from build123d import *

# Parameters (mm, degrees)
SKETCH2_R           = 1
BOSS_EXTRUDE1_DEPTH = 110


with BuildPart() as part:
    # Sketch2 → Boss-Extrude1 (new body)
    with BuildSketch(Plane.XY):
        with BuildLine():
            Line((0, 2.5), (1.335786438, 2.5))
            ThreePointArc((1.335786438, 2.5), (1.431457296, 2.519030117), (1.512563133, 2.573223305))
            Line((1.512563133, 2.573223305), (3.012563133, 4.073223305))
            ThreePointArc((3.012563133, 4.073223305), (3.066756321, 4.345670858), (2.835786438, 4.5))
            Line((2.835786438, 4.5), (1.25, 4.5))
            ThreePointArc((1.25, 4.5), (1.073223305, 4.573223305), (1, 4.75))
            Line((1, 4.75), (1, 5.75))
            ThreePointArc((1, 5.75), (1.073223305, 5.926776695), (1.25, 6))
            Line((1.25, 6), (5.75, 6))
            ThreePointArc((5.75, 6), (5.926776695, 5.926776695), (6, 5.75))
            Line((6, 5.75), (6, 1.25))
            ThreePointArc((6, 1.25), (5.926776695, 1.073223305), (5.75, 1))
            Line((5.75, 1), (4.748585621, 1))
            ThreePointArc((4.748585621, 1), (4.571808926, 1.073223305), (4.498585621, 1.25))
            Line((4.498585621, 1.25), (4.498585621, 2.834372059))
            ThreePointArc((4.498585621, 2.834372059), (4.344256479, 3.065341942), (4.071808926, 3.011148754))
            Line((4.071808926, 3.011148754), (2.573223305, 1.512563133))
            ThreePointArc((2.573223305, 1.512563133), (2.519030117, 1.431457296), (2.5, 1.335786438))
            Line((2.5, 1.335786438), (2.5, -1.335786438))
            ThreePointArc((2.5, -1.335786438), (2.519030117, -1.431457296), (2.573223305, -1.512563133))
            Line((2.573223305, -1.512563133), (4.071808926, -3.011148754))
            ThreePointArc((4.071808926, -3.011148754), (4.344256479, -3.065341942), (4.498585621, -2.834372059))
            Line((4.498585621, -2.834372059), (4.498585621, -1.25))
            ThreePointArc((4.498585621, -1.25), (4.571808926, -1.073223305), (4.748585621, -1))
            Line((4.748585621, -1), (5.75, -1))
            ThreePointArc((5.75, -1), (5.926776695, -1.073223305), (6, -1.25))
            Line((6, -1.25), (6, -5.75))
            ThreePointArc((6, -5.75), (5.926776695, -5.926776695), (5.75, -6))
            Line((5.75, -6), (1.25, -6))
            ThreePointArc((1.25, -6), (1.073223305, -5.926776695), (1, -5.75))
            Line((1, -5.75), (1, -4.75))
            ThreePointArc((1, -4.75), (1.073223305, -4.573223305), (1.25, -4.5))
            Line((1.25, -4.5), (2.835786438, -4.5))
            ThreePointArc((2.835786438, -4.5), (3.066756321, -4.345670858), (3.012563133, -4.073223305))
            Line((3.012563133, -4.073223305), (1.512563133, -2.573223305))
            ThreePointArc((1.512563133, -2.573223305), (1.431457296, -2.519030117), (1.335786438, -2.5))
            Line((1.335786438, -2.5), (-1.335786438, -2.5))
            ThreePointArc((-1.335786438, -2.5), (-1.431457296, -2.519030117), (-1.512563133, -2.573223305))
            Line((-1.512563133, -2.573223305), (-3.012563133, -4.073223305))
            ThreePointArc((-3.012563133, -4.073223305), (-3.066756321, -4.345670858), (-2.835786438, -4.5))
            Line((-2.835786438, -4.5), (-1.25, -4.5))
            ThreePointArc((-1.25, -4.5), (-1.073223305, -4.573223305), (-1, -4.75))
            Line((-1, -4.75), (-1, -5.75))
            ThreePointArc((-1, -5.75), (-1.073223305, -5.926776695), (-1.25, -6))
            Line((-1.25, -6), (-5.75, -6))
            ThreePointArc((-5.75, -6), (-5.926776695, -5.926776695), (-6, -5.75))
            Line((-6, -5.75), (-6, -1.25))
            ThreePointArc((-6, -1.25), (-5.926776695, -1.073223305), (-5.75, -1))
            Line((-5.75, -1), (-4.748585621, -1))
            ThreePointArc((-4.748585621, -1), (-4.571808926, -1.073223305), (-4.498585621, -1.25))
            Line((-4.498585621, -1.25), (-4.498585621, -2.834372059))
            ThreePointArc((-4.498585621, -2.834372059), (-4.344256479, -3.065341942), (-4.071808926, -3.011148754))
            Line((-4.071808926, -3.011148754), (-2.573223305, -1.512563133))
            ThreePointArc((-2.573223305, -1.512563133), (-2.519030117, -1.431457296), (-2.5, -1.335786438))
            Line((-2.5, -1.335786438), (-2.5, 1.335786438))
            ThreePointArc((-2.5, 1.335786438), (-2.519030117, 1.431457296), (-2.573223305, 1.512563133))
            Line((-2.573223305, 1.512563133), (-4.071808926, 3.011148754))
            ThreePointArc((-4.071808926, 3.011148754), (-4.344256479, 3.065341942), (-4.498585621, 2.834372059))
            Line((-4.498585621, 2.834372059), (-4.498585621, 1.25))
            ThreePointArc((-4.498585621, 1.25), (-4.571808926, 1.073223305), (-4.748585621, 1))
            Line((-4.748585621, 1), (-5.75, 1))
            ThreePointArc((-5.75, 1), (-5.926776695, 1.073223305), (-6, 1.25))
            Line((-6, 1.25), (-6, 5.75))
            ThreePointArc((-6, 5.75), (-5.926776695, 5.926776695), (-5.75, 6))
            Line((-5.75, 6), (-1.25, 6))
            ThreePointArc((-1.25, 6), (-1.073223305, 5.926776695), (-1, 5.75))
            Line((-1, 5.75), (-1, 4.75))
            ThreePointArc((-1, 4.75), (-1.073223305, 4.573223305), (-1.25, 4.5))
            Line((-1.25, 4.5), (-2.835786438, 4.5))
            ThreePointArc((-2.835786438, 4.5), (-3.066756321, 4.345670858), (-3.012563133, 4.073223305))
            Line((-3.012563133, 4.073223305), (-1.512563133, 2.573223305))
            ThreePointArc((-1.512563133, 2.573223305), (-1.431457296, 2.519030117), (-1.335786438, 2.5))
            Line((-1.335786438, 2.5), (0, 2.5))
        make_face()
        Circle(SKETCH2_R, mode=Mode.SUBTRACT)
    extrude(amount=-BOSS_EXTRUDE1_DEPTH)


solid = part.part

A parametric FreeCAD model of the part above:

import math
import FreeCAD as App
import Part
import Sketcher

V = App.Vector

doc = App.newDocument("Part")
params = doc.addObject("Spreadsheet::Sheet", "Params")
for row, (alias, value) in enumerate([
    ("sketch1_diameter", "2 mm"),
    ("sketch1_height", "1 mm"),
    ("sketch1_radius", "0.25 mm"),
    ("sketch1_width", "4.5 mm"),
    ("pad1_length", "110 mm"),
], start=1):
    params.set(f"A{row}", alias)
    params.set(f"B{row}", "=" + value)
    params.setAlias(f"B{row}", alias)

body = doc.addObject("PartDesign::Body", "Body")

# Sketch on XY plane
sketch1 = body.newObject("Sketcher::SketchObject", "Sketch")
sketch1.AttachmentSupport = (doc.getObject("XY_Plane"), [""])
sketch1.MapMode = "FlatFace"
sketch1.addGeometry([
    Part.ArcOfCircle(Part.Circle(V(1.335786, 2.75, 0), V(0, 0, 1), 0.25), math.radians(-90), math.radians(-45)),  # 0
    Part.LineSegment(V(1.335786, 2.5, 0), V(-1.335786, 2.5, 0)),  # 1
    Part.ArcOfCircle(Part.Circle(V(-1.335786, 2.75, 0), V(0, 0, 1), 0.25), math.radians(-135), math.radians(-90)),  # 2
    Part.LineSegment(V(-1.512563, 2.573223, 0), V(-3.012563, 4.073223, 0)),  # 3
    Part.ArcOfCircle(Part.Circle(V(-2.835786, 4.25, 0), V(0, 0, 1), 0.25), math.radians(90), math.radians(225)),  # 4
    Part.LineSegment(V(-2.835786, 4.5, 0), V(-1.25, 4.5, 0)),  # 5
    Part.ArcOfCircle(Part.Circle(V(-1.25, 4.75, 0), V(0, 0, 1), 0.25), math.radians(-90), math.radians(0)),  # 6
    Part.LineSegment(V(-1, 4.75, 0), V(-1, 5.75, 0)),  # 7
    Part.ArcOfCircle(Part.Circle(V(-1.25, 5.75, 0), V(0, 0, 1), 0.25), math.radians(0), math.radians(90)),  # 8
    Part.LineSegment(V(-1.25, 6, 0), V(-5.75, 6, 0)),  # 9
    Part.ArcOfCircle(Part.Circle(V(-5.75, 5.75, 0), V(0, 0, 1), 0.25), math.radians(90), math.radians(180)),  # 10
    Part.LineSegment(V(-6, 5.75, 0), V(-6, 1.25, 0)),  # 11
    Part.ArcOfCircle(Part.Circle(V(-5.75, 1.25, 0), V(0, 0, 1), 0.25), math.radians(-180), math.radians(-90)),  # 12
    Part.LineSegment(V(-5.75, 1, 0), V(-4.748586, 1, 0)),  # 13
    Part.ArcOfCircle(Part.Circle(V(-4.748586, 1.25, 0), V(0, 0, 1), 0.25), math.radians(-90), math.radians(0)),  # 14
    Part.LineSegment(V(-4.498586, 1.25, 0), V(-4.498586, 2.834372, 0)),  # 15
    Part.ArcOfCircle(Part.Circle(V(-4.248586, 2.834372, 0), V(0, 0, 1), 0.25), math.radians(45), math.radians(180)),  # 16
    Part.LineSegment(V(-4.071809, 3.011149, 0), V(-2.573223, 1.512563, 0)),  # 17
    Part.ArcOfCircle(Part.Circle(V(-2.75, 1.335786, 0), V(0, 0, 1), 0.25), math.radians(0), math.radians(45)),  # 18
    Part.LineSegment(V(-2.5, 1.335786, 0), V(-2.5, -1.335786, 0)),  # 19
    Part.ArcOfCircle(Part.Circle(V(-2.75, -1.335786, 0), V(0, 0, 1), 0.25), math.radians(-45), math.radians(0)),  # 20
    Part.LineSegment(V(-2.573223, -1.512563, 0), V(-4.071809, -3.011149, 0)),  # 21
    Part.ArcOfCircle(Part.Circle(V(-4.248586, -2.834372, 0), V(0, 0, 1), 0.25), math.radians(180), math.radians(315)),  # 22
    Part.LineSegment(V(-4.498586, -2.834372, 0), V(-4.498586, -1.25, 0)),  # 23
    Part.ArcOfCircle(Part.Circle(V(-4.748586, -1.25, 0), V(0, 0, 1), 0.25), math.radians(0), math.radians(90)),  # 24
    Part.LineSegment(V(-4.748586, -1, 0), V(-5.75, -1, 0)),  # 25
    Part.ArcOfCircle(Part.Circle(V(-5.75, -1.25, 0), V(0, 0, 1), 0.25), math.radians(90), math.radians(180)),  # 26
    Part.LineSegment(V(-6, -1.25, 0), V(-6, -5.75, 0)),  # 27
    Part.ArcOfCircle(Part.Circle(V(-5.75, -5.75, 0), V(0, 0, 1), 0.25), math.radians(-180), math.radians(-90)),  # 28
    Part.LineSegment(V(-5.75, -6, 0), V(-1.25, -6, 0)),  # 29
    Part.ArcOfCircle(Part.Circle(V(-1.25, -5.75, 0), V(0, 0, 1), 0.25), math.radians(-90), math.radians(0)),  # 30
    Part.LineSegment(V(-1, -5.75, 0), V(-1, -4.75, 0)),  # 31
    Part.ArcOfCircle(Part.Circle(V(-1.25, -4.75, 0), V(0, 0, 1), 0.25), math.radians(0), math.radians(90)),  # 32
    Part.LineSegment(V(-1.25, -4.5, 0), V(-2.835786, -4.5, 0)),  # 33
    Part.ArcOfCircle(Part.Circle(V(-2.835786, -4.25, 0), V(0, 0, 1), 0.25), math.radians(135), math.radians(270)),  # 34
    Part.LineSegment(V(-3.012563, -4.073223, 0), V(-1.512563, -2.573223, 0)),  # 35
    Part.ArcOfCircle(Part.Circle(V(-1.335786, -2.75, 0), V(0, 0, 1), 0.25), math.radians(90), math.radians(135)),  # 36
    Part.LineSegment(V(-1.335786, -2.5, 0), V(1.335786, -2.5, 0)),  # 37
    Part.ArcOfCircle(Part.Circle(V(1.335786, -2.75, 0), V(0, 0, 1), 0.25), math.radians(45), math.radians(90)),  # 38
    Part.LineSegment(V(1.512563, -2.573223, 0), V(3.012563, -4.073223, 0)),  # 39
    Part.ArcOfCircle(Part.Circle(V(2.835786, -4.25, 0), V(0, 0, 1), 0.25), math.radians(-90), math.radians(45)),  # 40
    Part.LineSegment(V(2.835786, -4.5, 0), V(1.25, -4.5, 0)),  # 41
    Part.ArcOfCircle(Part.Circle(V(1.25, -4.75, 0), V(0, 0, 1), 0.25), math.radians(90), math.radians(180)),  # 42
    Part.LineSegment(V(1, -4.75, 0), V(1, -5.75, 0)),  # 43
    Part.ArcOfCircle(Part.Circle(V(1.25, -5.75, 0), V(0, 0, 1), 0.25), math.radians(-180), math.radians(-90)),  # 44
    Part.LineSegment(V(1.25, -6, 0), V(5.75, -6, 0)),  # 45
    Part.ArcOfCircle(Part.Circle(V(5.75, -5.75, 0), V(0, 0, 1), 0.25), math.radians(-90), math.radians(0)),  # 46
    Part.LineSegment(V(6, -5.75, 0), V(6, -1.25, 0)),  # 47
    Part.ArcOfCircle(Part.Circle(V(5.75, -1.25, 0), V(0, 0, 1), 0.25), math.radians(0), math.radians(90)),  # 48
    Part.LineSegment(V(5.75, -1, 0), V(4.748586, -1, 0)),  # 49
    Part.ArcOfCircle(Part.Circle(V(4.748586, -1.25, 0), V(0, 0, 1), 0.25), math.radians(90), math.radians(180)),  # 50
    Part.LineSegment(V(4.498586, -1.25, 0), V(4.498586, -2.834372, 0)),  # 51
    Part.ArcOfCircle(Part.Circle(V(4.248586, -2.834372, 0), V(0, 0, 1), 0.25), math.radians(-135), math.radians(0)),  # 52
    Part.LineSegment(V(4.071809, -3.011149, 0), V(2.573223, -1.512563, 0)),  # 53
    Part.ArcOfCircle(Part.Circle(V(2.75, -1.335786, 0), V(0, 0, 1), 0.25), math.radians(180), math.radians(225)),  # 54
    Part.LineSegment(V(2.5, -1.335786, 0), V(2.5, 1.335786, 0)),  # 55
    Part.ArcOfCircle(Part.Circle(V(2.75, 1.335786, 0), V(0, 0, 1), 0.25), math.radians(135), math.radians(180)),  # 56
    Part.LineSegment(V(2.573223, 1.512563, 0), V(4.071809, 3.011149, 0)),  # 57
    Part.ArcOfCircle(Part.Circle(V(4.248586, 2.834372, 0), V(0, 0, 1), 0.25), math.radians(0), math.radians(135)),  # 58
    Part.LineSegment(V(4.498586, 2.834372, 0), V(4.498586, 1.25, 0)),  # 59
    Part.ArcOfCircle(Part.Circle(V(4.748586, 1.25, 0), V(0, 0, 1), 0.25), math.radians(-180), math.radians(-90)),  # 60
    Part.LineSegment(V(4.748586, 1, 0), V(5.75, 1, 0)),  # 61
    Part.ArcOfCircle(Part.Circle(V(5.75, 1.25, 0), V(0, 0, 1), 0.25), math.radians(-90), math.radians(0)),  # 62
    Part.LineSegment(V(6, 1.25, 0), V(6, 5.75, 0)),  # 63
    Part.ArcOfCircle(Part.Circle(V(5.75, 5.75, 0), V(0, 0, 1), 0.25), math.radians(0), math.radians(90)),  # 64
    Part.LineSegment(V(5.75, 6, 0), V(1.25, 6, 0)),  # 65
    Part.ArcOfCircle(Part.Circle(V(1.25, 5.75, 0), V(0, 0, 1), 0.25), math.radians(90), math.radians(180)),  # 66
    Part.LineSegment(V(1, 5.75, 0), V(1, 4.75, 0)),  # 67
    Part.ArcOfCircle(Part.Circle(V(1.25, 4.75, 0), V(0, 0, 1), 0.25), math.radians(-180), math.radians(-90)),  # 68
    Part.LineSegment(V(1.25, 4.5, 0), V(2.835786, 4.5, 0)),  # 69
    Part.ArcOfCircle(Part.Circle(V(2.835786, 4.25, 0), V(0, 0, 1), 0.25), math.radians(-45), math.radians(90)),  # 70
    Part.LineSegment(V(3.012563, 4.073223, 0), V(1.512563, 2.573223, 0)),  # 71
    Part.Circle(V(0, 0, 0), V(0, 0, 1), 1),  # 72
], False)
sketch1.addConstraint([
    Sketcher.Constraint("Tangent", 0, 1, 1, 1),
    Sketcher.Constraint("Tangent", 1, 2, 2, 2),
    Sketcher.Constraint("Tangent", 2, 1, 3, 1),
    Sketcher.Constraint("Tangent", 3, 2, 4, 2),
    Sketcher.Constraint("Tangent", 4, 1, 5, 1),
    Sketcher.Constraint("Tangent", 5, 2, 6, 1),
    Sketcher.Constraint("Tangent", 6, 2, 7, 1),
    Sketcher.Constraint("Tangent", 7, 2, 8, 1),
    Sketcher.Constraint("Tangent", 8, 2, 9, 1),
    Sketcher.Constraint("Tangent", 9, 2, 10, 1),
    Sketcher.Constraint("Tangent", 10, 2, 11, 1),
    Sketcher.Constraint("Tangent", 11, 2, 12, 1),
    Sketcher.Constraint("Tangent", 12, 2, 13, 1),
    Sketcher.Constraint("Tangent", 13, 2, 14, 1),
    Sketcher.Constraint("Tangent", 14, 2, 15, 1),
    Sketcher.Constraint("Tangent", 15, 2, 16, 2),
    Sketcher.Constraint("Tangent", 16, 1, 17, 1),
    Sketcher.Constraint("Tangent", 17, 2, 18, 2),
    Sketcher.Constraint("Tangent", 18, 1, 19, 1),
    Sketcher.Constraint("Tangent", 19, 2, 20, 2),
    Sketcher.Constraint("Tangent", 20, 1, 21, 1),
    Sketcher.Constraint("Tangent", 21, 2, 22, 2),
    Sketcher.Constraint("Tangent", 22, 1, 23, 1),
    Sketcher.Constraint("Tangent", 23, 2, 24, 1),
    Sketcher.Constraint("Tangent", 24, 2, 25, 1),
    Sketcher.Constraint("Tangent", 25, 2, 26, 1),
    Sketcher.Constraint("Tangent", 26, 2, 27, 1),
    Sketcher.Constraint("Tangent", 27, 2, 28, 1),
    Sketcher.Constraint("Tangent", 28, 2, 29, 1),
    Sketcher.Constraint("Tangent", 29, 2, 30, 1),
    Sketcher.Constraint("Tangent", 30, 2, 31, 1),
    Sketcher.Constraint("Tangent", 31, 2, 32, 1),
    Sketcher.Constraint("Tangent", 32, 2, 33, 1),
    Sketcher.Constraint("Tangent", 33, 2, 34, 2),
    Sketcher.Constraint("Tangent", 34, 1, 35, 1),
    Sketcher.Constraint("Tangent", 35, 2, 36, 2),
    Sketcher.Constraint("Tangent", 36, 1, 37, 1),
    Sketcher.Constraint("Tangent", 37, 2, 38, 2),
    Sketcher.Constraint("Tangent", 38, 1, 39, 1),
    Sketcher.Constraint("Tangent", 39, 2, 40, 2),
    Sketcher.Constraint("Tangent", 40, 1, 41, 1),
    Sketcher.Constraint("Tangent", 41, 2, 42, 1),
    Sketcher.Constraint("Tangent", 42, 2, 43, 1),
    Sketcher.Constraint("Tangent", 43, 2, 44, 1),
    Sketcher.Constraint("Tangent", 44, 2, 45, 1),
    Sketcher.Constraint("Tangent", 45, 2, 46, 1),
    Sketcher.Constraint("Tangent", 46, 2, 47, 1),
    Sketcher.Constraint("Tangent", 47, 2, 48, 1),
    Sketcher.Constraint("Tangent", 48, 2, 49, 1),
    Sketcher.Constraint("Tangent", 49, 2, 50, 1),
    Sketcher.Constraint("Tangent", 50, 2, 51, 1),
    Sketcher.Constraint("Tangent", 51, 2, 52, 2),
    Sketcher.Constraint("Tangent", 52, 1, 53, 1),
    Sketcher.Constraint("Tangent", 53, 2, 54, 2),
    Sketcher.Constraint("Tangent", 54, 1, 55, 1),
    Sketcher.Constraint("Tangent", 55, 2, 56, 2),
    Sketcher.Constraint("Tangent", 56, 1, 57, 1),
    Sketcher.Constraint("Tangent", 57, 2, 58, 2),
    Sketcher.Constraint("Tangent", 58, 1, 59, 1),
    Sketcher.Constraint("Tangent", 59, 2, 60, 1),
    Sketcher.Constraint("Tangent", 60, 2, 61, 1),
    Sketcher.Constraint("Tangent", 61, 2, 62, 1),
    Sketcher.Constraint("Tangent", 62, 2, 63, 1),
    Sketcher.Constraint("Tangent", 63, 2, 64, 1),
    Sketcher.Constraint("Tangent", 64, 2, 65, 1),
    Sketcher.Constraint("Tangent", 65, 2, 66, 1),
    Sketcher.Constraint("Tangent", 66, 2, 67, 1),
    Sketcher.Constraint("Tangent", 67, 2, 68, 1),
    Sketcher.Constraint("Tangent", 68, 2, 69, 1),
    Sketcher.Constraint("Tangent", 69, 2, 70, 2),
    Sketcher.Constraint("Tangent", 70, 1, 71, 1),
    Sketcher.Constraint("Tangent", 71, 2, 0, 2),
    Sketcher.Constraint("Horizontal", 1),
    Sketcher.Constraint("Horizontal", 5),
    Sketcher.Constraint("Vertical", 7),
    Sketcher.Constraint("Horizontal", 9),
    Sketcher.Constraint("Vertical", 11),
    Sketcher.Constraint("Horizontal", 13),
    Sketcher.Constraint("Vertical", 15),
    Sketcher.Constraint("Vertical", 19),
    Sketcher.Constraint("Vertical", 23),
    Sketcher.Constraint("Horizontal", 25),
    Sketcher.Constraint("Vertical", 27),
    Sketcher.Constraint("Horizontal", 29),
    Sketcher.Constraint("Vertical", 31),
    Sketcher.Constraint("Horizontal", 33),
    Sketcher.Constraint("Horizontal", 37),
    Sketcher.Constraint("Horizontal", 41),
    Sketcher.Constraint("Vertical", 43),
    Sketcher.Constraint("Horizontal", 45),
    Sketcher.Constraint("Vertical", 47),
    Sketcher.Constraint("Horizontal", 49),
    Sketcher.Constraint("Vertical", 51),
    Sketcher.Constraint("Vertical", 55),
    Sketcher.Constraint("Vertical", 59),
    Sketcher.Constraint("Horizontal", 61),
    Sketcher.Constraint("Vertical", 63),
    Sketcher.Constraint("Horizontal", 65),
    Sketcher.Constraint("Vertical", 67),
    Sketcher.Constraint("Horizontal", 69),
    Sketcher.Constraint("Coincident", 72, 3, -1, 1),
    Sketcher.Constraint("Equal", 0, 2),
    Sketcher.Constraint("Equal", 2, 4),
    Sketcher.Constraint("Equal", 4, 6),
    Sketcher.Constraint("Equal", 6, 8),
    Sketcher.Constraint("Equal", 8, 10),
    Sketcher.Constraint("Equal", 10, 12),
    Sketcher.Constraint("Equal", 12, 14),
    Sketcher.Constraint("Equal", 14, 16),
    Sketcher.Constraint("Equal", 16, 18),
    Sketcher.Constraint("Equal", 18, 20),
    Sketcher.Constraint("Equal", 20, 22),
    Sketcher.Constraint("Equal", 22, 24),
    Sketcher.Constraint("Equal", 24, 26),
    Sketcher.Constraint("Equal", 26, 28),
    Sketcher.Constraint("Equal", 28, 30),
    Sketcher.Constraint("Equal", 30, 32),
    Sketcher.Constraint("Equal", 32, 34),
    Sketcher.Constraint("Equal", 34, 36),
    Sketcher.Constraint("Equal", 36, 38),
    Sketcher.Constraint("Equal", 38, 40),
    Sketcher.Constraint("Equal", 40, 42),
    Sketcher.Constraint("Equal", 42, 44),
    Sketcher.Constraint("Equal", 44, 46),
    Sketcher.Constraint("Equal", 46, 48),
    Sketcher.Constraint("Equal", 48, 50),
    Sketcher.Constraint("Equal", 50, 52),
    Sketcher.Constraint("Equal", 52, 54),
    Sketcher.Constraint("Equal", 54, 56),
    Sketcher.Constraint("Equal", 56, 58),
    Sketcher.Constraint("Equal", 58, 60),
    Sketcher.Constraint("Equal", 60, 62),
    Sketcher.Constraint("Equal", 62, 64),
    Sketcher.Constraint("Equal", 64, 66),
    Sketcher.Constraint("Equal", 66, 68),
    Sketcher.Constraint("Equal", 68, 70),
    Sketcher.Constraint("Symmetric", 0, 3, 36, 3, -1, 1),
    Sketcher.Constraint("Symmetric", 4, 3, 40, 3, -1, 1),
    Sketcher.Constraint("Symmetric", 8, 3, 44, 3, -1, 1),
    Sketcher.Constraint("Symmetric", 12, 3, 48, 3, -1, 1),
    Sketcher.Constraint("Symmetric", 16, 3, 52, 3, -1, 1),
    Sketcher.Constraint("Symmetric", 18, 3, 54, 3, -1, 1),
    Sketcher.Constraint("Symmetric", 22, 3, 58, 3, -1, 1),
    Sketcher.Constraint("Symmetric", 26, 3, 62, 3, -1, 1),
    Sketcher.Constraint("Symmetric", 30, 3, 66, 3, -1, 1),
    Sketcher.Constraint("Symmetric", 34, 3, 70, 3, -1, 1),
    Sketcher.Constraint("Symmetric", 34, 3, 40, 3, -2),
    Sketcher.Constraint("Symmetric", 30, 3, 44, 3, -2),
    Sketcher.Constraint("Symmetric", 26, 3, 48, 3, -2),
    Sketcher.Constraint("Symmetric", 22, 3, 52, 3, -2),
    Sketcher.Constraint("Parallel", 3, 17),
    Sketcher.Constraint("Perpendicular", 17, 21),
    Sketcher.Constraint("Parallel", 21, 35),
    Sketcher.Constraint("Perpendicular", 35, 39),
    Sketcher.Constraint("Perpendicular", 53, 57),
    Sketcher.Constraint("Horizontal", 20, 3, 54, 3),
    Sketcher.Constraint("Equal", 65, 11),
    Sketcher.Constraint("Equal", 37, 19),
    Sketcher.Constraint("Diameter", 72, 2.0),
    Sketcher.Constraint("DistanceY", 7, 1, 7, 2, 1.0),
    Sketcher.Constraint("Radius", 0, 0.25),
    Sketcher.Constraint("DistanceX", 9, 2, 9, 1, 4.5),
    Sketcher.Constraint("DistanceX", 6, 2, -1, 1, 1.0),
    Sketcher.Constraint("DistanceY", -1, 1, 8, 2, 6.0),
    Sketcher.Constraint("DistanceY", -1, 1, 0, 1, 2.5),
    Sketcher.Constraint("DistanceX", 18, 1, -1, 1, 2.5),
    Sketcher.Constraint("Distance", 17, 2.11932),
    Sketcher.Constraint("DistanceX", 1, 2, 1, 1, 2.671573),
])
sketch1.setExpression("Constraints[158]", "Params.sketch1_diameter")
sketch1.setExpression("Constraints[159]", "Params.sketch1_height")
sketch1.setExpression("Constraints[160]", "Params.sketch1_radius")
sketch1.setExpression("Constraints[161]", "Params.sketch1_width")
pad1 = body.newObject("PartDesign::Pad", "Pad")
pad1.Profile = sketch1
pad1.setExpression("Length", "Params.pad1_length")
pad1.Reversed = True

doc.recompute()
